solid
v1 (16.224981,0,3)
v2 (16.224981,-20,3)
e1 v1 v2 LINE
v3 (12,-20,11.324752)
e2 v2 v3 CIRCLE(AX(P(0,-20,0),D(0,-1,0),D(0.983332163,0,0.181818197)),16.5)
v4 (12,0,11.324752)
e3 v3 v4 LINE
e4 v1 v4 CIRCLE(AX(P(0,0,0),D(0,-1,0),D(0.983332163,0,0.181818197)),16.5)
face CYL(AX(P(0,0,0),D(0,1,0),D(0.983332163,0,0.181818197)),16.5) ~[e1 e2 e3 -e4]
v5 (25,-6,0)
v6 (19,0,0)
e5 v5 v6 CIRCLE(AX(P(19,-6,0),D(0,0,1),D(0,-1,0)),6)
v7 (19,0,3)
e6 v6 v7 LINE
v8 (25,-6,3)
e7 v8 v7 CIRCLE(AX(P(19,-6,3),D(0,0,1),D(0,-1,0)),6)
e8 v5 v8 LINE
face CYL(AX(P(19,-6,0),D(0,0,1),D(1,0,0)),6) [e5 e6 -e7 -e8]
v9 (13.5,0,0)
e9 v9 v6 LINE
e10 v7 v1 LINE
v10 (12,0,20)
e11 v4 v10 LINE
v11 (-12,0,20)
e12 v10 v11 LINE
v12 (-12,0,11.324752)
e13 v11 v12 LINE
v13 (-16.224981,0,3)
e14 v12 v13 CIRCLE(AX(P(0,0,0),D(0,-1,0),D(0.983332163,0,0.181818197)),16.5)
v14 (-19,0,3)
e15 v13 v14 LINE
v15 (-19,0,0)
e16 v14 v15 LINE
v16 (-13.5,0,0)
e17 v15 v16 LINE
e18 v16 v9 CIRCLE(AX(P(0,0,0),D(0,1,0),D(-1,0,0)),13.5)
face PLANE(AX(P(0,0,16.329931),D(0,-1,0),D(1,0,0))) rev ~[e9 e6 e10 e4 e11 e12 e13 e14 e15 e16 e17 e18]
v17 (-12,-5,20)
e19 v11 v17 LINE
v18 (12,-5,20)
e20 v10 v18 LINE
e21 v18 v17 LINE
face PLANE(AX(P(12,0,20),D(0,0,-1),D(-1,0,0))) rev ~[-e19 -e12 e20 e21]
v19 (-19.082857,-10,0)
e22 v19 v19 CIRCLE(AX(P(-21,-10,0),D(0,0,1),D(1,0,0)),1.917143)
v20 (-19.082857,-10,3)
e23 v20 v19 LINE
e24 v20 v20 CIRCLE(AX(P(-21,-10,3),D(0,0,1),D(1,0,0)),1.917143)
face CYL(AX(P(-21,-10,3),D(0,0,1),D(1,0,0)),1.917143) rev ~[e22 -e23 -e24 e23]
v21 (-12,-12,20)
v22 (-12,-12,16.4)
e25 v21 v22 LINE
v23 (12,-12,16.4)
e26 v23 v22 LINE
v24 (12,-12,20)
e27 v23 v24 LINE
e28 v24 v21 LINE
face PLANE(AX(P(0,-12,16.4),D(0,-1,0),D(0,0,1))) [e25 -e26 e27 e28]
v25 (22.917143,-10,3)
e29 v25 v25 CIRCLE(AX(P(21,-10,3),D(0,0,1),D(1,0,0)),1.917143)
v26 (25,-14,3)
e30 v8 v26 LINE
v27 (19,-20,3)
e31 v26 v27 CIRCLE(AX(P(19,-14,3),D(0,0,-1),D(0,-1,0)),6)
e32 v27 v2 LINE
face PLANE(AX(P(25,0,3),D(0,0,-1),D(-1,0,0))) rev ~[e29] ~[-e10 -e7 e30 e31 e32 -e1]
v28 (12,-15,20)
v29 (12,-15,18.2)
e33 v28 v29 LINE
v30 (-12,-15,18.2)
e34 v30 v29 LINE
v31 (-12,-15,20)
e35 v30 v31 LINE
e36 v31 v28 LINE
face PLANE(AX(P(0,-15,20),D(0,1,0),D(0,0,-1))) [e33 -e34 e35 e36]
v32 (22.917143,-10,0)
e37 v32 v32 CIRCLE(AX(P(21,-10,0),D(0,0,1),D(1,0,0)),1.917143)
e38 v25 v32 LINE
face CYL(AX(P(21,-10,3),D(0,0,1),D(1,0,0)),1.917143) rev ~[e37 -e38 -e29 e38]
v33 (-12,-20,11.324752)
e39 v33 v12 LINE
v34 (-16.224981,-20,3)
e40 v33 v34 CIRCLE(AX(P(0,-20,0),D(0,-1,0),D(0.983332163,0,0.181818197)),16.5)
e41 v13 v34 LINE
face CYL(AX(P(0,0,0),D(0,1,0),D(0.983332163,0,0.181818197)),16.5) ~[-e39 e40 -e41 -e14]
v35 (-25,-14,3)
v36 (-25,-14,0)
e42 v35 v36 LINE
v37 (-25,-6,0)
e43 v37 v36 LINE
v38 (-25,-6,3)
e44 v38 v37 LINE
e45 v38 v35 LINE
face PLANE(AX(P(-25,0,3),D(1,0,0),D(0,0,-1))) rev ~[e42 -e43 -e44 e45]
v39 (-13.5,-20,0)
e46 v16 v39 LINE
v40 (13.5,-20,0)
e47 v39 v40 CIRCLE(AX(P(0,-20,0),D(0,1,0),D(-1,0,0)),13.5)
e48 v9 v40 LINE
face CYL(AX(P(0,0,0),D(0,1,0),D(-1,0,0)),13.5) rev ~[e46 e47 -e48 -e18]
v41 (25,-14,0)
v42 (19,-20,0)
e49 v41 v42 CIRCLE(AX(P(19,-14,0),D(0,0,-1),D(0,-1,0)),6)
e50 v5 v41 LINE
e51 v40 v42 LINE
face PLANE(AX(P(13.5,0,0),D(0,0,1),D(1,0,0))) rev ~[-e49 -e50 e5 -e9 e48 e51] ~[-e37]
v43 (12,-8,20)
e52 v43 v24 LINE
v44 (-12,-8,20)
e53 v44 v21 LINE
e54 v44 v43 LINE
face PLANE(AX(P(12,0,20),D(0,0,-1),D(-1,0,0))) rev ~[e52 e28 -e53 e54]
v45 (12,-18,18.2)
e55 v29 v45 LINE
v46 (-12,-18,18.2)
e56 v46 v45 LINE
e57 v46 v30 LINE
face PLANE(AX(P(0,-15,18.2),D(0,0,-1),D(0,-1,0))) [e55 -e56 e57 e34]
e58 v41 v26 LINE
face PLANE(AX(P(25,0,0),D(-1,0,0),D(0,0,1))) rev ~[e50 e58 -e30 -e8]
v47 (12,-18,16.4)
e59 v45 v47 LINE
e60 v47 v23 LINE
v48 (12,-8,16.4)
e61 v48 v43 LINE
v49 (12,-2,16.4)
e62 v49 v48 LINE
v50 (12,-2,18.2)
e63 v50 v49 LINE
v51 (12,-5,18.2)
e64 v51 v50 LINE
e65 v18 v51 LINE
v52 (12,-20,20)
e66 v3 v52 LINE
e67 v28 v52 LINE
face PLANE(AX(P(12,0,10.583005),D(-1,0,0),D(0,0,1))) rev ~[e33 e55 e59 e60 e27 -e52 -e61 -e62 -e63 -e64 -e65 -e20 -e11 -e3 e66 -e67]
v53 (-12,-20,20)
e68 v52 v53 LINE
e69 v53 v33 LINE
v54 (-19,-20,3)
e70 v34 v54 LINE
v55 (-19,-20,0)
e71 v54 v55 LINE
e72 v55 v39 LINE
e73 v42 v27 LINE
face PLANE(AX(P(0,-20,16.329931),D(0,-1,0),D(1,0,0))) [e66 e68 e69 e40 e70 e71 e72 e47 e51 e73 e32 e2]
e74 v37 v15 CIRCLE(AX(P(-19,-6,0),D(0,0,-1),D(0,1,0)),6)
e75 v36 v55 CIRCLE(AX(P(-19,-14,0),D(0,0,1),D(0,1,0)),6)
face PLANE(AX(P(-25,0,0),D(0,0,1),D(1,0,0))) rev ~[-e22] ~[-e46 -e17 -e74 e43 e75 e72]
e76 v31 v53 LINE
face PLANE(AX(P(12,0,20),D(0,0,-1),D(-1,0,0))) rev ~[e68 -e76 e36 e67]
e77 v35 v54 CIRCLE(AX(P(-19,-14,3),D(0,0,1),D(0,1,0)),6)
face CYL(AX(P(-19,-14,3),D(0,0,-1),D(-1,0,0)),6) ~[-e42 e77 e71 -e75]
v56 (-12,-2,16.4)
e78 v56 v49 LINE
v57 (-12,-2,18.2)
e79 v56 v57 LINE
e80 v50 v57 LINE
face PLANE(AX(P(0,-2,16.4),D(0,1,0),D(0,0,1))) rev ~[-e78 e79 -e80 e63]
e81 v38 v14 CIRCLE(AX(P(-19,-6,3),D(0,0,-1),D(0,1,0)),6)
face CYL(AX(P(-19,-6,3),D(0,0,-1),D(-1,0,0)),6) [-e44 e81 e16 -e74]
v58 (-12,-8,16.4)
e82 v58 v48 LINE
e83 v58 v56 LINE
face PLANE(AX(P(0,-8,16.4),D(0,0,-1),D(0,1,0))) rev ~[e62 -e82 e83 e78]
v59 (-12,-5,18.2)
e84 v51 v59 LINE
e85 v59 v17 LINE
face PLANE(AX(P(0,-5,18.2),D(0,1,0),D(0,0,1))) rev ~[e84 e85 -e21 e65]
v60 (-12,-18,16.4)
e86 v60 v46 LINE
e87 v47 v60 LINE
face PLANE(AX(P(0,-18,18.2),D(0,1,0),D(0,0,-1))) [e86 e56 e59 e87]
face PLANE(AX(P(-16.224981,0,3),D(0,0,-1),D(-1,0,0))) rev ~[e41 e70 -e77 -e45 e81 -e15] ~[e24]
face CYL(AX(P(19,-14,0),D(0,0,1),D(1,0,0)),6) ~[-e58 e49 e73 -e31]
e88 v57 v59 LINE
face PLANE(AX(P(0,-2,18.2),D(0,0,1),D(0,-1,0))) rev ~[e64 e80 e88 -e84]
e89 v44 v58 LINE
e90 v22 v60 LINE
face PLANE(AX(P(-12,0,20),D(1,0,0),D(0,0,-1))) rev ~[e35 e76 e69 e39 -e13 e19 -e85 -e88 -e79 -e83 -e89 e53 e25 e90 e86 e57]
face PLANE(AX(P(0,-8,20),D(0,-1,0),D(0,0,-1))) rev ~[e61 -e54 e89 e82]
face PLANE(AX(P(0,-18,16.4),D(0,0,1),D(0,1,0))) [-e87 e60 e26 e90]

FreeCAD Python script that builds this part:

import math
import FreeCAD as App
import Part
import Sketcher
Q = App.Units.Quantity


def edges_at(feature, points):
    """Names of the edges that pass closest to the given points."""
    edges = feature.Shape.Edges
    near = lambda p: min(range(len(edges)), key=lambda i: edges[i].distToShape(Part.Vertex(*p))[0])
    return sorted({f"Edge{near(p) + 1}" for p in points})

doc = App.newDocument("Part")
body = doc.addObject("PartDesign::Body", "Body")

sketch1 = body.newObject("Sketcher::SketchObject", "Sketch")
sketch1.AttachmentSupport = (doc.getObject("XZ_Plane"), [""])
sketch1.MapMode = "FlatFace"
sketch1.addGeometry(Part.LineSegment(App.Vector(-25, 3, 0), App.Vector(-25, 0, 0)), False)
sketch1.addGeometry(Part.LineSegment(App.Vector(-25, 0, 0), App.Vector(-13.5, 0, 0)), False)
sketch1.addGeometry(Part.ArcOfCircle(Part.Circle(App.Vector(0, 0, 0), App.Vector(0, 0, 1), 13.5), math.radians(0), math.radians(180)), False)
sketch1.addGeometry(Part.LineSegment(App.Vector(13.5, 0, 0), App.Vector(25, 0, 0)), False)
sketch1.addGeometry(Part.LineSegment(App.Vector(25, 0, 0), App.Vector(25, 3, 0)), False)
sketch1.addGeometry(Part.LineSegment(App.Vector(25, 3, 0), App.Vector(16.2, 3, 0)), False)
sketch1.addGeometry(Part.ArcOfCircle(Part.Circle(App.Vector(0, 0, 0), App.Vector(0, 0, 1), 16.5), math.radians(10), math.radians(170)), False)
sketch1.addGeometry(Part.LineSegment(App.Vector(-16.2, 3, 0), App.Vector(-25, 3, 0)), False)
sketch1.addConstraint(Sketcher.Constraint("Coincident", 0, 2, 1, 1))
sketch1.addConstraint(Sketcher.Constraint("Coincident", 1, 2, 2, 2))
sketch1.addConstraint(Sketcher.Constraint("Coincident", 2, 1, 3, 1))
sketch1.addConstraint(Sketcher.Constraint("Coincident", 3, 2, 4, 1))
sketch1.addConstraint(Sketcher.Constraint("Coincident", 4, 2, 5, 1))
sketch1.addConstraint(Sketcher.Constraint("Coincident", 5, 2, 6, 1))
sketch1.addConstraint(Sketcher.Constraint("Coincident", 6, 2, 7, 1))
sketch1.addConstraint(Sketcher.Constraint("Coincident", 7, 2, 0, 1))
sketch1.addConstraint(Sketcher.Constraint("Vertical", 0))
sketch1.addConstraint(Sketcher.Constraint("Horizontal", 1))
sketch1.addConstraint(Sketcher.Constraint("Horizontal", 3))
sketch1.addConstraint(Sketcher.Constraint("Vertical", 4))
sketch1.addConstraint(Sketcher.Constraint("Horizontal", 5))
sketch1.addConstraint(Sketcher.Constraint("Horizontal", 7))
sketch1.addConstraint(Sketcher.Constraint("Coincident", 2, 3, -1, 1))
sketch1.addConstraint(Sketcher.Constraint("Coincident", 6, 3, -1, 1))
sketch1.addConstraint(Sketcher.Constraint("Symmetric", 0, 2, 3, 2, -1, 1))
sketch1.addConstraint(Sketcher.Constraint("PointOnObject", 0, 2, -1))
sketch1.addConstraint(Sketcher.Constraint("Horizontal", 5, 2, 6, 2))
sketch1.addConstraint(Sketcher.Constraint("Radius", 2, Q("13.5 mm")))
sketch1.addConstraint(Sketcher.Constraint("Radius", 6, Q("16.5 mm")))
sketch1.addConstraint(Sketcher.Constraint("DistanceY", 0, 2, 0, 1, Q("3 mm")))
sketch1.addConstraint(Sketcher.Constraint("DistanceX", 1, 1, 1, 2, Q("11.5 mm")))
pad1 = body.newObject("PartDesign::Pad", "Pad")
pad1.Profile = sketch1
pad1.Length = 20
doc.recompute()

fillet = body.newObject("PartDesign::Fillet", "Fillet")
fillet.Base = (pad1, edges_at(pad1, [
    (25, -20, 1.5),
    (25, 0, 1.5),
    (-25, -20, 1.5),
    (-25, 0, 1.5),
]))
fillet.Radius = 6

sketch2 = body.newObject("Sketcher::SketchObject", "Sketch001")
sketch2.AttachmentSupport = (doc.getObject("XY_Plane"), [""])
sketch2.MapMode = "FlatFace"
sketch2.AttachmentOffset = App.Placement(App.Vector(0, 0, 3), App.Rotation())
sketch2.addGeometry(Part.Circle(App.Vector(-21, -10, 0), App.Vector(0, 0, 1), 1.9), False)
sketch2.addGeometry(Part.Circle(App.Vector(21, -10, 0), App.Vector(0, 0, 1), 1.9), False)
sketch2.addConstraint(Sketcher.Constraint("Equal", 0, 1))
sketch2.addConstraint(Sketcher.Constraint("Symmetric", 0, 3, 1, 3, -2))
sketch2.addConstraint(Sketcher.Constraint("DistanceX", 0, 3, -1, 1, Q("21 mm")))
sketch2.addConstraint(Sketcher.Constraint("DistanceY", 0, 3, -1, 1, Q("10 mm")))
sketch2.addConstraint(Sketcher.Constraint("Diameter", 0, Q("3.834286 mm")))
pocket1 = body.newObject("PartDesign::Pocket", "Pocket")
pocket1.Profile = sketch2
pocket1.Length = 25

sketch3 = body.newObject("Sketcher::SketchObject", "Sketch002")
sketch3.AttachmentSupport = (doc.getObject("XZ_Plane"), [""])
sketch3.MapMode = "FlatFace"
sketch3.addGeometry(Part.LineSegment(App.Vector(12, 20, 0), App.Vector(-12, 20, 0)), False)
sketch3.addGeometry(Part.LineSegment(App.Vector(-12, 20, 0), App.Vector(-12, 11, 0)), False)
sketch3.addGeometry(Part.ArcOfCircle(Part.Circle(App.Vector(0, 0, 0), App.Vector(0, 0, 1), 16), math.radians(41), math.radians(139)), False)
sketch3.addGeometry(Part.LineSegment(App.Vector(12, 11, 0), App.Vector(12, 20, 0)), False)
sketch3.addConstraint(Sketcher.Constraint("Coincident", 0, 2, 1, 1))
sketch3.addConstraint(Sketcher.Constraint("Coincident", 1, 2, 2, 2))
sketch3.addConstraint(Sketcher.Constraint("Coincident", 2, 1, 3, 1))
sketch3.addConstraint(Sketcher.Constraint("Coincident", 3, 2, 0, 1))
sketch3.addConstraint(Sketcher.Constraint("Horizontal", 0))
sketch3.addConstraint(Sketcher.Constraint("Vertical", 1))
sketch3.addConstraint(Sketcher.Constraint("Vertical", 3))
sketch3.addConstraint(Sketcher.Constraint("Coincident", 2, 3, -1, 1))
sketch3.addConstraint(Sketcher.Constraint("Horizontal", 1, 2, 2, 1))
sketch3.addConstraint(Sketcher.Constraint("Radius", 2, Q("16 mm")))
sketch3.addConstraint(Sketcher.Constraint("DistanceX", 0, 2, 0, 1, Q("24 mm")))
sketch3.addConstraint(Sketcher.Constraint("DistanceY", -1, 1, 0, 2, Q("20 mm")))
pad2 = body.newObject("PartDesign::Pad", "Pad001")
pad2.Profile = sketch3
pad2.Length = 20

sketch4 = body.newObject("Sketcher::SketchObject", "Sketch003")
sketch4.AttachmentSupport = (doc.getObject("YZ_Plane"), [""])
sketch4.MapMode = "FlatFace"
sketch4.addGeometry(Part.LineSegment(App.Vector(-12, 20, 0), App.Vector(-15, 20, 0)), False)
sketch4.addGeometry(Part.LineSegment(App.Vector(-15, 20, 0), App.Vector(-15, 18.2, 0)), False)
sketch4.addGeometry(Part.LineSegment(App.Vector(-15, 18.2, 0), App.Vector(-18, 18.2, 0)), False)
sketch4.addGeometry(Part.LineSegment(App.Vector(-18, 18.2, 0), App.Vector(-18, 16.4, 0)), False)
sketch4.addGeometry(Part.LineSegment(App.Vector(-18, 16.4, 0), App.Vector(-12, 16.4, 0)), False)
sketch4.addGeometry(Part.LineSegment(App.Vector(-12, 16.4, 0), App.Vector(-12, 20, 0)), False)
sketch4.addGeometry(Part.LineSegment(App.Vector(-5, 20, 0), App.Vector(-8, 20, 0)), False)
sketch4.addGeometry(Part.LineSegment(App.Vector(-8, 20, 0), App.Vector(-8, 16.4, 0)), False)
sketch4.addGeometry(Part.LineSegment(App.Vector(-8, 16.4, 0), App.Vector(-2, 16.4, 0)), False)
sketch4.addGeometry(Part.LineSegment(App.Vector(-2, 16.4, 0), App.Vector(-2, 18.2, 0)), False)
sketch4.addGeometry(Part.LineSegment(App.Vector(-2, 18.2, 0), App.Vector(-5, 18.2, 0)), False)
sketch4.addGeometry(Part.LineSegment(App.Vector(-5, 18.2, 0), App.Vector(-5, 20, 0)), False)
sketch4.addConstraint(Sketcher.Constraint("Coincident", 0, 2, 1, 1))
sketch4.addConstraint(Sketcher.Constraint("Coincident", 1, 2, 2, 1))
sketch4.addConstraint(Sketcher.Constraint("Coincident", 2, 2, 3, 1))
sketch4.addConstraint(Sketcher.Constraint("Coincident", 3, 2, 4, 1))
sketch4.addConstraint(Sketcher.Constraint("Coincident", 4, 2, 5, 1))
sketch4.addConstraint(Sketcher.Constraint("Coincident", 5, 2, 0, 1))
sketch4.addConstraint(Sketcher.Constraint("Coincident", 6, 2, 7, 1))
sketch4.addConstraint(Sketcher.Constraint("Coincident", 7, 2, 8, 1))
sketch4.addConstraint(Sketcher.Constraint("Coincident", 8, 2, 9, 1))
sketch4.addConstraint(Sketcher.Constraint("Coincident", 9, 2, 10, 1))
sketch4.addConstraint(Sketcher.Constraint("Coincident", 10, 2, 11, 1))
sketch4.addConstraint(Sketcher.Constraint("Coincident", 11, 2, 6, 1))
sketch4.addConstraint(Sketcher.Constraint("Horizontal", 0))
sketch4.addConstraint(Sketcher.Constraint("Vertical", 1))
sketch4.addConstraint(Sketcher.Constraint("Horizontal", 2))
sketch4.addConstraint(Sketcher.Constraint("Vertical", 3))
sketch4.addConstraint(Sketcher.Constraint("Horizontal", 4))
sketch4.addConstraint(Sketcher.Constraint("Vertical", 5))
sketch4.addConstraint(Sketcher.Constraint("Horizontal", 6))
sketch4.addConstraint(Sketcher.Constraint("Vertical", 7))
sketch4.addConstraint(Sketcher.Constraint("Horizontal", 8))
sketch4.addConstraint(Sketcher.Constraint("Vertical", 9))
sketch4.addConstraint(Sketcher.Constraint("Horizontal", 10))
sketch4.addConstraint(Sketcher.Constraint("Vertical", 11))
sketch4.addConstraint(Sketcher.Constraint("Horizontal", 5, 2, 6, 2))
sketch4.addConstraint(Sketcher.Constraint("Horizontal", 4, 2, 7, 2))
sketch4.addConstraint(Sketcher.Constraint("Horizontal", 2, 2, 9, 2))
sketch4.addConstraint(Sketcher.Constraint("Equal", 0, 2))
sketch4.addConstraint(Sketcher.Constraint("Equal", 2, 6))
sketch4.addConstraint(Sketcher.Constraint("Equal", 4, 8))
sketch4.addConstraint(Sketcher.Constraint("Equal", 1, 3))
sketch4.addConstraint(Sketcher.Constraint("DistanceX", 0, 2, 0, 1, Q("3 mm")))
sketch4.addConstraint(Sketcher.Constraint("DistanceY", 1, 2, 1, 1, Q("1.8 mm")))
sketch4.addConstraint(Sketcher.Constraint("DistanceX", 0, 2, -1, 1, Q("15 mm")))
sketch4.addConstraint(Sketcher.Constraint("DistanceY", -1, 1, 0, 2, Q("20 mm")))
sketch4.addConstraint(Sketcher.Constraint("DistanceX", 6, 2, -1, 1, Q("8 mm")))
pocket2 = body.newObject("PartDesign::Pocket", "Pocket001")
pocket2.Profile = sketch4
pocket2.Length = 25
pocket2.Midplane = True

doc.recompute()
